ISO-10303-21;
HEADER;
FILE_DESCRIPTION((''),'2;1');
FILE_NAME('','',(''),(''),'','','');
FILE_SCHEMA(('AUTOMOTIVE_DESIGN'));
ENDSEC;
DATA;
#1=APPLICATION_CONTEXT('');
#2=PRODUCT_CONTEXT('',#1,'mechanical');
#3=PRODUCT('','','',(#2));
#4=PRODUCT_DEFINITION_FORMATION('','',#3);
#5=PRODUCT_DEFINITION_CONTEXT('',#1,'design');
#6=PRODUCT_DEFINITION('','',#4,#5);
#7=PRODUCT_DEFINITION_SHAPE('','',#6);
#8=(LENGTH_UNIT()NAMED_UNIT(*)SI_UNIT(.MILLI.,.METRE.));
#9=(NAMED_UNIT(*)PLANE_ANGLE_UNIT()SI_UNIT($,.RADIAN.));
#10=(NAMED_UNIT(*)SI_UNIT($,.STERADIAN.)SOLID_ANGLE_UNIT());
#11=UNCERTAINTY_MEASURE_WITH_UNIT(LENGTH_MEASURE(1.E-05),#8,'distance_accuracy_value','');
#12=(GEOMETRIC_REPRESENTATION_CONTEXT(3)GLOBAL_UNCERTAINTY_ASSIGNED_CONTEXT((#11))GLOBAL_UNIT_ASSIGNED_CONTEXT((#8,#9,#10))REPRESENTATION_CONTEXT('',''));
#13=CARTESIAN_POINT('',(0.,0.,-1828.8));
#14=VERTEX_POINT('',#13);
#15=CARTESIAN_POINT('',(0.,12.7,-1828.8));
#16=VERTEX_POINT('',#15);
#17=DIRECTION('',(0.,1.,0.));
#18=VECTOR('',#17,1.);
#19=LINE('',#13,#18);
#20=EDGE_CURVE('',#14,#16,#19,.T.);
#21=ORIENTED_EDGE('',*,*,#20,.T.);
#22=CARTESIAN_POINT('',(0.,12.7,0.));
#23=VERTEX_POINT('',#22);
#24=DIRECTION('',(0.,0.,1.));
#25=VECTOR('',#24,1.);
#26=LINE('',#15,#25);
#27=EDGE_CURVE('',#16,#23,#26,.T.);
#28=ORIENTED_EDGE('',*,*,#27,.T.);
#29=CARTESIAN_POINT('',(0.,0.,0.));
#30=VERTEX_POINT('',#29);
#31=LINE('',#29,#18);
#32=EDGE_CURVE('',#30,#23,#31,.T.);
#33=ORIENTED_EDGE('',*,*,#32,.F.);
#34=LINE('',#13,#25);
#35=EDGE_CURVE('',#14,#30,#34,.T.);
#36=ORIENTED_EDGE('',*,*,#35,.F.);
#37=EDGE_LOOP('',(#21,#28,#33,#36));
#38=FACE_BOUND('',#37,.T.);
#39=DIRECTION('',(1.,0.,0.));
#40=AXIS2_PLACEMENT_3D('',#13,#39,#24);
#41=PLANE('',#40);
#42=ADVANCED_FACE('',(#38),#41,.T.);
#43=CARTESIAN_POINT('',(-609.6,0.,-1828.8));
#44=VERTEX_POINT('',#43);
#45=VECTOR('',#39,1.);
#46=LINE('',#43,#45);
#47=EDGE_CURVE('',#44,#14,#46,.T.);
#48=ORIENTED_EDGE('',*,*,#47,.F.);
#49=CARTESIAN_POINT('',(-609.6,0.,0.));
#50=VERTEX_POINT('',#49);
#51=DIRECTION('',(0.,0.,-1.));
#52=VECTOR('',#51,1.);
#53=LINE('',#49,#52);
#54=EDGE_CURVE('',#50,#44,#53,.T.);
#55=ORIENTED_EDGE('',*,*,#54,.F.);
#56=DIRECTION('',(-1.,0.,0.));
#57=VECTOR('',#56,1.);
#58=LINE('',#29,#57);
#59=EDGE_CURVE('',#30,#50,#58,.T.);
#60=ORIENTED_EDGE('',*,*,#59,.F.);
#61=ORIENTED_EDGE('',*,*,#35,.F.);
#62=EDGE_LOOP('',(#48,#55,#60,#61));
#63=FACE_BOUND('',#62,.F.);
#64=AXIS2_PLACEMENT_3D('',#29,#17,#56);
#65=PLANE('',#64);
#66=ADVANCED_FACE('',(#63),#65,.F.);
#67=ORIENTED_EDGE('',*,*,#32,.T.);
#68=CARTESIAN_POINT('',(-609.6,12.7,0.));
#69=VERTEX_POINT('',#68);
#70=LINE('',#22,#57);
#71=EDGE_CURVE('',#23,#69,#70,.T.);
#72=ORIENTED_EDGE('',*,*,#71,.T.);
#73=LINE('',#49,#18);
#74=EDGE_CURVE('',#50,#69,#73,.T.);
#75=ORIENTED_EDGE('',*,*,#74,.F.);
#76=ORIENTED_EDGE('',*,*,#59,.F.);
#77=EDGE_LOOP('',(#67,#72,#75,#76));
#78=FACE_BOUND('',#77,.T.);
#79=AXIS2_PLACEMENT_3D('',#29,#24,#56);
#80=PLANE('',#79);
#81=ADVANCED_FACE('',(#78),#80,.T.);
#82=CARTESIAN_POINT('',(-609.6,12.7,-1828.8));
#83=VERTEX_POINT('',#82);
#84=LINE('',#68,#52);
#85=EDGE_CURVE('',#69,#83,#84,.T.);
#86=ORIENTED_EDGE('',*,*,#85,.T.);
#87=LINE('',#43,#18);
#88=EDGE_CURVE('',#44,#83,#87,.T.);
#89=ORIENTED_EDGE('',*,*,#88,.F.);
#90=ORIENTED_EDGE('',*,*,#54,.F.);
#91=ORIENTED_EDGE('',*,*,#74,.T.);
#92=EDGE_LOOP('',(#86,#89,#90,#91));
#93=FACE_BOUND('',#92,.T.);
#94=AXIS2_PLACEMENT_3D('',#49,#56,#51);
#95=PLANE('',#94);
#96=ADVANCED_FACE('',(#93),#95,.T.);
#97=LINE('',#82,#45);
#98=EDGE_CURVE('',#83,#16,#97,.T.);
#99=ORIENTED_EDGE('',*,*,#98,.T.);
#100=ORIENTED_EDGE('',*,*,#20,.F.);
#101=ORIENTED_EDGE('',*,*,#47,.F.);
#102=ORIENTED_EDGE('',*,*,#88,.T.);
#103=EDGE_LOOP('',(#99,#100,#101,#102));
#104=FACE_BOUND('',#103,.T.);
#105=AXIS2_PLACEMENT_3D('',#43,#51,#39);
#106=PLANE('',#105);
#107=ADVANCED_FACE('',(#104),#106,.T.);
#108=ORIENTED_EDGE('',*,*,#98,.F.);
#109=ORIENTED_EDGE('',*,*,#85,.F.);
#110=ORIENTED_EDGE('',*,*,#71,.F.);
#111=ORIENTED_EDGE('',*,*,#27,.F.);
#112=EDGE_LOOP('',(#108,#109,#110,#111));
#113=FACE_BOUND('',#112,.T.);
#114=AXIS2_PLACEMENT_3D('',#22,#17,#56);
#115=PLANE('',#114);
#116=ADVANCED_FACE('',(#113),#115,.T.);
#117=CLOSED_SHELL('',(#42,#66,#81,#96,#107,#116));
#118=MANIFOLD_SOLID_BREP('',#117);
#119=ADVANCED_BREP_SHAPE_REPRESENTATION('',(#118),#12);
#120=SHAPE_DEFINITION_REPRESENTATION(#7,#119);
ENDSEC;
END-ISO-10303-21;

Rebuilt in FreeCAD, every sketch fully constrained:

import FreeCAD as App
import Part
import Sketcher
from FreeCAD import Vector
Q = App.Units.Quantity

doc = App.newDocument("Part")
body = doc.addObject("PartDesign::Body", "Body")

sketch1 = doc.addObject("Sketcher::SketchObject", "Sketch")
body.addObject(sketch1)
sketch1.AttachmentSupport = (doc.XZ_Plane, [""])
sketch1.MapMode = "FlatFace"
sketch1.addGeometry([
    Part.LineSegment(Vector(-610, 0, 0), Vector(0, 0, 0)),
    Part.LineSegment(Vector(0, 0, 0), Vector(0, -1829, 0)),
    Part.LineSegment(Vector(0, -1829, 0), Vector(-610, -1829, 0)),
    Part.LineSegment(Vector(-610, -1829, 0), Vector(-610, 0, 0)),
], False)
sketch1.addConstraint([
    Sketcher.Constraint("Coincident", 0, 2, 1, 1),
    Sketcher.Constraint("Coincident", 1, 2, 2, 1),
    Sketcher.Constraint("Coincident", 2, 2, 3, 1),
    Sketcher.Constraint("Coincident", 3, 2, 0, 1),
    Sketcher.Constraint("Horizontal", 0),
    Sketcher.Constraint("Vertical", 1),
    Sketcher.Constraint("Horizontal", 2),
    Sketcher.Constraint("Vertical", 3),
    Sketcher.Constraint("Coincident", 0, 2, -1, 1),
    Sketcher.Constraint("DistanceX", 0, 1, 0, 2, Q("24 in")),
    Sketcher.Constraint("DistanceY", 1, 2, 1, 1, Q("72 in")),
])
pad1 = doc.addObject("PartDesign::Pad", "Pad")
body.addObject(pad1)
pad1.Profile = sketch1
pad1.Length = Q("0.5 in")
pad1.Reversed = True

doc.recompute()
